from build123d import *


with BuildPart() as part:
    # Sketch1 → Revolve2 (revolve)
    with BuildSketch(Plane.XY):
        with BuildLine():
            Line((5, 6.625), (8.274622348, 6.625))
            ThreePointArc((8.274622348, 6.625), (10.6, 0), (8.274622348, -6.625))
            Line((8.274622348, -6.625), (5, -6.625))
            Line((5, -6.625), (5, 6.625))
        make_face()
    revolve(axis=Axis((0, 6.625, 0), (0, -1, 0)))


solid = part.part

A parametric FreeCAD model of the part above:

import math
import FreeCAD as App
import Part
import Sketcher
Q = App.Units.Quantity

doc = App.newDocument("Part")
body = doc.addObject("PartDesign::Body", "Body")

sketch1 = body.newObject("Sketcher::SketchObject", "Sketch")
sketch1.AttachmentSupport = (doc.getObject("XY_Plane"), [""])
sketch1.MapMode = "FlatFace"
sketch1.addGeometry([
    Part.LineSegment(App.Vector(8.3, 6.6, 0), App.Vector(5, 6.6, 0)),
    Part.LineSegment(App.Vector(5, 6.6, 0), App.Vector(5, -6.6, 0)),
    Part.LineSegment(App.Vector(5, -6.6, 0), App.Vector(8.3, -6.6, 0)),
    Part.ArcOfCircle(Part.Circle(App.Vector(0, 0, 0), App.Vector(0, 0, 1), 10.6), math.radians(-39), math.radians(39)),
], False)
sketch1.addConstraint([
    Sketcher.Constraint("Coincident", 0, 2, 1, 1),
    Sketcher.Constraint("Coincident", 1, 2, 2, 1),
    Sketcher.Constraint("Coincident", 2, 2, 3, 1),
    Sketcher.Constraint("Coincident", 3, 2, 0, 1),
    Sketcher.Constraint("Horizontal", 0),
    Sketcher.Constraint("Vertical", 1),
    Sketcher.Constraint("Horizontal", 2),
    Sketcher.Constraint("Coincident", 3, 3, -1, 1),
    Sketcher.Constraint("Vertical", 2, 2, 3, 2),
    Sketcher.Constraint("Radius", 3, Q("10.6 mm")),
    Sketcher.Constraint("DistanceX", -1, 1, 0, 2, Q("5 mm")),
    Sketcher.Constraint("DistanceY", 1, 2, 1, 1, Q("13.25 mm")),
])
revolution = body.newObject("PartDesign::Revolution", "Revolution")
revolution.Profile = sketch1
revolution.ReferenceAxis = (sketch1, ["V_Axis"])
revolution.Angle = 360

doc.recompute()
